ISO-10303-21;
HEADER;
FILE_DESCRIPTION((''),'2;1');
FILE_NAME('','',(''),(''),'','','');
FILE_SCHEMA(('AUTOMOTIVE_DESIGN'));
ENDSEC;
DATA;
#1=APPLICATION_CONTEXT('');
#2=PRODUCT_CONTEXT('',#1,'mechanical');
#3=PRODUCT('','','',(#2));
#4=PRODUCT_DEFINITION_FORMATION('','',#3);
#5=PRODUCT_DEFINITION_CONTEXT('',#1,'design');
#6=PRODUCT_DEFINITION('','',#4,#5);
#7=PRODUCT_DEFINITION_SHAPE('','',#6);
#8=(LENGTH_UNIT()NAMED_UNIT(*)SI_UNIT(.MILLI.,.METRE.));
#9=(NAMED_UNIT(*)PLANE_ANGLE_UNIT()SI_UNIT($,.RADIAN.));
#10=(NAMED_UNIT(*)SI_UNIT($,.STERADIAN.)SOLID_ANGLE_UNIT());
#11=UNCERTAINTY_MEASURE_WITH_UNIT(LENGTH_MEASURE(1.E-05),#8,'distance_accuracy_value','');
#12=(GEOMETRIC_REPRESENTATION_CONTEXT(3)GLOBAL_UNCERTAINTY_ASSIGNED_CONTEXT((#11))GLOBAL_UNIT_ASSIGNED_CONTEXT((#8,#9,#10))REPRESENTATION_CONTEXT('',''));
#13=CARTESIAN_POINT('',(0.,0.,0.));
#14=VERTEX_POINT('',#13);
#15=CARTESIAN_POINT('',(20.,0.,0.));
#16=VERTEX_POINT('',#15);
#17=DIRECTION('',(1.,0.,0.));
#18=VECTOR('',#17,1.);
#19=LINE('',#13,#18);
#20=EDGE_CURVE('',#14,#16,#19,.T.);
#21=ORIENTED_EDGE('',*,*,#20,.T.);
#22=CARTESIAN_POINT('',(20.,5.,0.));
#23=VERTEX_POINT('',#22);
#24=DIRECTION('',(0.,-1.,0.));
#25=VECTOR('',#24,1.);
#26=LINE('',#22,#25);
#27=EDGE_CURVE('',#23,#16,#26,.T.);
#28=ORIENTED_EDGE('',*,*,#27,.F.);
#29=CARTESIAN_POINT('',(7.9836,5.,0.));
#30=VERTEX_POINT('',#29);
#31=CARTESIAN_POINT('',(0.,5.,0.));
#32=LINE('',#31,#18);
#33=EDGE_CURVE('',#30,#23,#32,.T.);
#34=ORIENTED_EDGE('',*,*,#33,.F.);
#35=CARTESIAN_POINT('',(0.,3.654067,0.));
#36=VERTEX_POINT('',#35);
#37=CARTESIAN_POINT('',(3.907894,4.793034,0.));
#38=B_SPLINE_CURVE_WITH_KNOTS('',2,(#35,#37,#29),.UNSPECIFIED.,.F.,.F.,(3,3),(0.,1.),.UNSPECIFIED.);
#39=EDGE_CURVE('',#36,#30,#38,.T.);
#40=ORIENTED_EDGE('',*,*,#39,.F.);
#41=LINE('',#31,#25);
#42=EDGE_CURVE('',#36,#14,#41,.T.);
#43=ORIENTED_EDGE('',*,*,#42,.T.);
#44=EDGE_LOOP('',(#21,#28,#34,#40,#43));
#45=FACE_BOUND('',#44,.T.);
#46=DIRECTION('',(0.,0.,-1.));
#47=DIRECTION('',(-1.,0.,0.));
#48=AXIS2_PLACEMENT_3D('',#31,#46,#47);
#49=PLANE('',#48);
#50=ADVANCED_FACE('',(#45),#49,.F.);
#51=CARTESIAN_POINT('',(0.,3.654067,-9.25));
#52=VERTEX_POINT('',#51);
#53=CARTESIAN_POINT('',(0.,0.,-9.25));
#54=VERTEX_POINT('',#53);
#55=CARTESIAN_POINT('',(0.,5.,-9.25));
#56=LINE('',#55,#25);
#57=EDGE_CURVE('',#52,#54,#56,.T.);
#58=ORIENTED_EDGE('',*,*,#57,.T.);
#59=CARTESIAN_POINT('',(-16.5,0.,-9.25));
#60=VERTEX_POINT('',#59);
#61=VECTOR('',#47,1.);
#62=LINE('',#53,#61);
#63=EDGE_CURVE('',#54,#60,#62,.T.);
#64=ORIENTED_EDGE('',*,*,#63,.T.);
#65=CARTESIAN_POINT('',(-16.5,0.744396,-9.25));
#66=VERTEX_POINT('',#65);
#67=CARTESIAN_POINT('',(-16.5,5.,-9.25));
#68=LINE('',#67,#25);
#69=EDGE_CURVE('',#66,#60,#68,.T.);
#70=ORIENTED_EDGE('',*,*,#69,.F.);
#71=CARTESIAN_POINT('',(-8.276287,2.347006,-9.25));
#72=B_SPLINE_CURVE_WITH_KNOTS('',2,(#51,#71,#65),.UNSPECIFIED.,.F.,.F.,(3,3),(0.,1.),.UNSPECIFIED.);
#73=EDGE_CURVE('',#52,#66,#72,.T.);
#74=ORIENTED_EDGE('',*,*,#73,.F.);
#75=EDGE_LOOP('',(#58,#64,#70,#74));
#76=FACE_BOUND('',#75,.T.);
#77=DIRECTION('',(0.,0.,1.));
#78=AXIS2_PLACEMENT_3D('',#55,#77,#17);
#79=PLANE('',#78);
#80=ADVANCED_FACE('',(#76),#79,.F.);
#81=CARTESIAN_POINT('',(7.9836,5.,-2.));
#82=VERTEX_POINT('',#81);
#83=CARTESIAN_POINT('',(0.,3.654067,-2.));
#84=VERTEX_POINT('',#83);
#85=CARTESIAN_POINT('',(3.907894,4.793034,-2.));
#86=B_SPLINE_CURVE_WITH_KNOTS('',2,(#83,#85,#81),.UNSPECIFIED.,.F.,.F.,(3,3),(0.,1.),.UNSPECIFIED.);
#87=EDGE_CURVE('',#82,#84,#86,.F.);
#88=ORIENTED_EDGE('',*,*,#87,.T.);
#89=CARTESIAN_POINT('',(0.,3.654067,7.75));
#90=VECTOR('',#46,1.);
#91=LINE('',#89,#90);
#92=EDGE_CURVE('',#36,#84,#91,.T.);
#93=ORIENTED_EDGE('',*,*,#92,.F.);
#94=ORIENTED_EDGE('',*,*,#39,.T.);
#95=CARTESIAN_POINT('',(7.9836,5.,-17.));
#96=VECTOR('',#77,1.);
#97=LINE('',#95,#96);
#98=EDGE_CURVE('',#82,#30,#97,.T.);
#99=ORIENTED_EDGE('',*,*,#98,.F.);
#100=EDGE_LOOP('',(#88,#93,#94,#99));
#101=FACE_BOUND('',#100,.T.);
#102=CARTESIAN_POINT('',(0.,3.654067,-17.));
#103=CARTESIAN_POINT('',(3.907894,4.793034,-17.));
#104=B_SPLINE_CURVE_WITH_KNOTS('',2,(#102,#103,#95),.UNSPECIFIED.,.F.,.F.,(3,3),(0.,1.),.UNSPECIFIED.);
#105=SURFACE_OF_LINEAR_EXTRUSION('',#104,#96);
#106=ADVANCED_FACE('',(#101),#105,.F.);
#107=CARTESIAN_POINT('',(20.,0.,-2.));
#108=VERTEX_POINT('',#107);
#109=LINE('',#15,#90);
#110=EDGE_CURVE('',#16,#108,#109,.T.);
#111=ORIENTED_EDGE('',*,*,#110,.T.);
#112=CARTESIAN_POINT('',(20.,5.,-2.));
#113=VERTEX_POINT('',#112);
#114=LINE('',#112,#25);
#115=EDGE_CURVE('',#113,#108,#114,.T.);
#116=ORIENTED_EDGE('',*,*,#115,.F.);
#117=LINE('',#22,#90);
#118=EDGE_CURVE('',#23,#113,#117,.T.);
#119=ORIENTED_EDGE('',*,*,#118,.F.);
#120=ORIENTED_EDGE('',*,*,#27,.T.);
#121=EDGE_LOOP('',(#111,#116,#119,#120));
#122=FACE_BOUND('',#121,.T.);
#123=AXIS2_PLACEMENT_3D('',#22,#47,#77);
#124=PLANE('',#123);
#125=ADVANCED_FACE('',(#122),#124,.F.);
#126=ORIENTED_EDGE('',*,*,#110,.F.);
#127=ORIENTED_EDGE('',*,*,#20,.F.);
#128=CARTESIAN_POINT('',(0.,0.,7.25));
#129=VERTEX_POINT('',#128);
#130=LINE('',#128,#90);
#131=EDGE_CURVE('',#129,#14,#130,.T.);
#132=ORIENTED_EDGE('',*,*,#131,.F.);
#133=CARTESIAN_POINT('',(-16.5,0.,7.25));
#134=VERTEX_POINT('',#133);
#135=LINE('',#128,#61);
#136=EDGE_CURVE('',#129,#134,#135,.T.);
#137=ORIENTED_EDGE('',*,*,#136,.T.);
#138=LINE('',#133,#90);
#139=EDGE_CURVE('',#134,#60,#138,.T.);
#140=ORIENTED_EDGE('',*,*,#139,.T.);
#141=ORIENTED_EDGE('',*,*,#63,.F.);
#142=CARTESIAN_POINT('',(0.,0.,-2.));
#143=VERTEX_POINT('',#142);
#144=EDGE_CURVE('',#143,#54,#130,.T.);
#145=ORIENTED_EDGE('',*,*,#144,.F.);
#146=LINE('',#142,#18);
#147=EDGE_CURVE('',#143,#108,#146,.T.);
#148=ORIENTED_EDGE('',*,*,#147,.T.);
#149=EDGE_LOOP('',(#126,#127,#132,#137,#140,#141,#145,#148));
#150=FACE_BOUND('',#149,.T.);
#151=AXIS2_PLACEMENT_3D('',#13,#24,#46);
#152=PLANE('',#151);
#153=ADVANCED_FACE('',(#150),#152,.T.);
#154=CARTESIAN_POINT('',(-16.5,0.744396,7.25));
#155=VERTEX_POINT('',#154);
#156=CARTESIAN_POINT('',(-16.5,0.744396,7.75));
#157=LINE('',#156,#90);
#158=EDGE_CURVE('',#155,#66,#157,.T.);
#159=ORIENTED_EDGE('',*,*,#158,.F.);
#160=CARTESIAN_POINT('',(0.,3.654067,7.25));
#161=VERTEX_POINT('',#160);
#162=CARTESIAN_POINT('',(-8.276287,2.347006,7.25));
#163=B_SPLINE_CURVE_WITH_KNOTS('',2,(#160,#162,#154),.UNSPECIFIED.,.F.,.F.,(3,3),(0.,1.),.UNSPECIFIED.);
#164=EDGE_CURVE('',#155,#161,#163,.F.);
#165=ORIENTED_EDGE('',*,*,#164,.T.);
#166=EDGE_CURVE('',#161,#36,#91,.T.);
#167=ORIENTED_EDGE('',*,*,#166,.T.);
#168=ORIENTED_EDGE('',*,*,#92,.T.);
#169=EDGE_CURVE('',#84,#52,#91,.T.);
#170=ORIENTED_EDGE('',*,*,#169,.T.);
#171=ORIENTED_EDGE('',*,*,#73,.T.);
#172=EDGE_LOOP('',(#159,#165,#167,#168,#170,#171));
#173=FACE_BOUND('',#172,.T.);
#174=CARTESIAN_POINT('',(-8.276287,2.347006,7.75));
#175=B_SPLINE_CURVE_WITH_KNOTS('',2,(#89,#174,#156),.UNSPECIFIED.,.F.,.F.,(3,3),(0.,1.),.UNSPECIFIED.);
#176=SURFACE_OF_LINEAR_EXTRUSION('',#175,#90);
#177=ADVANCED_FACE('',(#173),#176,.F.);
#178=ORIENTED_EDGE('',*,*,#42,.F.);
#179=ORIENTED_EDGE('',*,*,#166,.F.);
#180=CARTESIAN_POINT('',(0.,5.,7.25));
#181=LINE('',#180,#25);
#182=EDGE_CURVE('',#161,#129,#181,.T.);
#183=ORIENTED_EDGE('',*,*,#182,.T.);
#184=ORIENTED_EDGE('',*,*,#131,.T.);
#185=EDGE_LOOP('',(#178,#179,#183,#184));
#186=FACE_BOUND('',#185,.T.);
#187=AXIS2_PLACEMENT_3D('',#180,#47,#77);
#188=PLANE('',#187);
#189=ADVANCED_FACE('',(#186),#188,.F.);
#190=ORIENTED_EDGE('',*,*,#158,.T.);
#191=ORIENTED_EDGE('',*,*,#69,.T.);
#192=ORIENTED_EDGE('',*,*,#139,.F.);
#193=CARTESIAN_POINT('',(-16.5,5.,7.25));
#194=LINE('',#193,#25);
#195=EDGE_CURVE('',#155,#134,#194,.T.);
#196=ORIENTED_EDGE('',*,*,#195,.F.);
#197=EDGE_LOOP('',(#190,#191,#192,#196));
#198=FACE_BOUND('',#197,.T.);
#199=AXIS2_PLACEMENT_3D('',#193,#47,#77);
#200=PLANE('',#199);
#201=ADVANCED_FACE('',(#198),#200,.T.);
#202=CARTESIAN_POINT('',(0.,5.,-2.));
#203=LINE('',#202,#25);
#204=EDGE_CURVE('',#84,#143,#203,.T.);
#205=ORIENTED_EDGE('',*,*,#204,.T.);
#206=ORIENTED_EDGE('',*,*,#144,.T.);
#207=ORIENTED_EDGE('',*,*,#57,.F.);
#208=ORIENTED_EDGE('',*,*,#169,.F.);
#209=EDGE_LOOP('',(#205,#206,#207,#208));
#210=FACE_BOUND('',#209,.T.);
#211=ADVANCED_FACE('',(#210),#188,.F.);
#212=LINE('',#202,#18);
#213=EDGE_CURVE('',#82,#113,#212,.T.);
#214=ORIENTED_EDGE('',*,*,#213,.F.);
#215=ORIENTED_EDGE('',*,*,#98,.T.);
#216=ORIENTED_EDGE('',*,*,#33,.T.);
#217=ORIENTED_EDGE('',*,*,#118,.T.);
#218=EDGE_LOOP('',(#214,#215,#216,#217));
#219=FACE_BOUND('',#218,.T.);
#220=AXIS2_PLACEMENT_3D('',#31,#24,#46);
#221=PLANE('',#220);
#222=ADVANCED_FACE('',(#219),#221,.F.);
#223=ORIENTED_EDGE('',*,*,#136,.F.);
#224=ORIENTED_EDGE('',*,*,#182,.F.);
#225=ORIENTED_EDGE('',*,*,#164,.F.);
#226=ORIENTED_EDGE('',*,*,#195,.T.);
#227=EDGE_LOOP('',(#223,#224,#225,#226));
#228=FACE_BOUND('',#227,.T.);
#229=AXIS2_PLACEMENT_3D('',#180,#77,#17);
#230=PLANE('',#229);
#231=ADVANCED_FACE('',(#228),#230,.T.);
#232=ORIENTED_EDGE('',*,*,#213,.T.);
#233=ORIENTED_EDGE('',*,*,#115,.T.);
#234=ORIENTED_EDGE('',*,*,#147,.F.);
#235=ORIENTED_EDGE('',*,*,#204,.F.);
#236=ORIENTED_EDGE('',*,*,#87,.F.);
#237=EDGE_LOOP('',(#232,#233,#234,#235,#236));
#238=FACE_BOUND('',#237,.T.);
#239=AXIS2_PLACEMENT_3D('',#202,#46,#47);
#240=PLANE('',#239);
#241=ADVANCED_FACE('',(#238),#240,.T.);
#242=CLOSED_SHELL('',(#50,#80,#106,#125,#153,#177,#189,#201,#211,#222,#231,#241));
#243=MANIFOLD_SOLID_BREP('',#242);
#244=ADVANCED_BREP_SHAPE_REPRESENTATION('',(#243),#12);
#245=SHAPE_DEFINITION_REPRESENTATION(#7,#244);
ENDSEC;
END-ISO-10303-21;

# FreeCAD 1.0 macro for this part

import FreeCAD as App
import Part
import Sketcher
from FreeCAD import Vector


def add_polygon(sketch, points):
    """Adds a closed chain of lines whose ends are joined by coincident constraints."""
    first, n = sketch.GeometryCount, len(points)
    for a, b in zip(points, points[1:] + points[:1]):
        sketch.addGeometry(Part.LineSegment(App.Vector(*a, 0), App.Vector(*b, 0)), False)
    for i in range(n):
        sketch.addConstraint(Sketcher.Constraint("Coincident", first + i, 2, first + (i + 1) % n, 1))

doc = App.newDocument("Part")
body = doc.addObject("PartDesign::Body", "Body")

sketch1 = doc.addObject("Sketcher::SketchObject", "Sketch")
body.addObject(sketch1)
sketch1.AttachmentSupport = (doc.XZ_Plane, [""])
sketch1.MapMode = "FlatFace"
add_polygon(sketch1, [(0, 0), (20, 0), (20, -2), (0, -2), (0, -9.2), (-16.5, -9.2), (-16.5, 7.2), (0, 7.2)])
sketch1.addConstraint(Sketcher.Constraint("Horizontal", 0))
sketch1.addConstraint(Sketcher.Constraint("Vertical", 1))
sketch1.addConstraint(Sketcher.Constraint("Horizontal", 2))
sketch1.addConstraint(Sketcher.Constraint("Vertical", 3))
sketch1.addConstraint(Sketcher.Constraint("Horizontal", 4))
sketch1.addConstraint(Sketcher.Constraint("Vertical", 5))
sketch1.addConstraint(Sketcher.Constraint("Horizontal", 6))
sketch1.addConstraint(Sketcher.Constraint("Vertical", 7))
sketch1.addConstraint(Sketcher.Constraint("Coincident", 7, 2, -1, 1))
sketch1.addConstraint(Sketcher.Constraint("PointOnObject", 2, 2, -2))
sketch1.addConstraint(Sketcher.Constraint("Equal", 6, 5))
sketch1.addConstraint(Sketcher.Constraint("Equal", 3, 7))
sketch1.addConstraint(Sketcher.Constraint("DistanceX", 0, 1, 0, 2, 20.0))
sketch1.addConstraint(Sketcher.Constraint("DistanceY", 1, 2, 1, 1, 2.0))
sketch1.addConstraint(Sketcher.Constraint("DistanceX", 4, 2, 4, 1, 16.5))
pad1 = doc.addObject("PartDesign::Pad", "Pad")
body.addObject(pad1)
pad1.Profile = sketch1
pad1.Length = 5
pad1.Reversed = True

sketch2 = doc.addObject("Sketcher::SketchObject", "Sketch001")
body.addObject(sketch2)
sketch2.AttachmentSupport = (doc.XY_Plane, [""])
sketch2.MapMode = "FlatFace"
sketch2.AttachmentOffset = App.Placement(Vector(0, 0, -9.25), App.Rotation())
sketch2.addGeometry(Part.LineSegment(Vector(0, 5, 0), Vector(0, 3.654067, 0)), False)
sketch2.addGeometry(Part.BSplineCurve([Vector(0, 3.654067, 0), Vector(-8.276287, 2.347006, 0), Vector(-16.5, 0.744396, 0)], [3, 3], [0, 1], False, 2, [1, 1, 1], False), False)
sketch2.addGeometry(Part.LineSegment(Vector(-16.5, 0.744396, 0), Vector(-18.688542, 4.204942, 0)), False)
sketch2.addGeometry(Part.LineSegment(Vector(-18.688542, 4.204942, 0), Vector(-16.723031, 6.238602, 0)), False)
sketch2.addGeometry(Part.LineSegment(Vector(-16.723031, 6.238602, 0), Vector(-3.598874, 6.462249, 0)), False)
sketch2.addGeometry(Part.LineSegment(Vector(-3.598874, 6.462249, 0), Vector(0, 5, 0)), False)
sketch2.addConstraint(Sketcher.Constraint("Block", 1))
sketch2.addConstraint(Sketcher.Constraint("Coincident", 0, 2, 1, 1))
sketch2.addConstraint(Sketcher.Constraint("Coincident", 1, 2, 2, 1))
sketch2.addConstraint(Sketcher.Constraint("Coincident", 2, 2, 3, 1))
sketch2.addConstraint(Sketcher.Constraint("Coincident", 3, 2, 4, 1))
sketch2.addConstraint(Sketcher.Constraint("Coincident", 4, 2, 5, 1))
sketch2.addConstraint(Sketcher.Constraint("Coincident", 5, 2, 0, 1))
sketch2.addConstraint(Sketcher.Constraint("Vertical", 0))
sketch2.addConstraint(Sketcher.Constraint("DistanceY", -1, 1, 5, 2, 5.0))
sketch2.addConstraint(Sketcher.Constraint("DistanceY", -1, 1, 3, 2, 6.238602))
sketch2.addConstraint(Sketcher.Constraint("Distance", 2, 4.09452))
sketch2.addConstraint(Sketcher.Constraint("Distance", 3, 2.828252))
sketch2.addConstraint(Sketcher.Constraint("DistanceY", -1, 1, 2, 2, 4.204942))
sketch2.addConstraint(Sketcher.Constraint("DistanceY", -1, 1, 4, 2, 6.462249))
sketch2.addConstraint(Sketcher.Constraint("DistanceX", 2, 2, 4, 2, 15.089668))
pocket1 = doc.addObject("PartDesign::Pocket", "Pocket")
body.addObject(pocket1)
pocket1.Profile = sketch2
pocket1.Length = 17
pocket1.Reversed = True

sketch3 = doc.addObject("Sketcher::SketchObject", "Sketch002")
body.addObject(sketch3)
sketch3.AttachmentSupport = (doc.XY_Plane, [""])
sketch3.MapMode = "FlatFace"
sketch3.addGeometry(Part.LineSegment(Vector(0, 5, 0), Vector(0, 3.654067, 0)), False)
sketch3.addGeometry(Part.BSplineCurve([Vector(0, 3.654067, 0), Vector(3.907894, 4.793034, 0), Vector(7.9836, 5, 0)], [3, 3], [0, 1], False, 2, [1, 1, 1], False), False)
sketch3.addGeometry(Part.LineSegment(Vector(7.9836, 5, 0), Vector(0, 5, 0)), False)
sketch3.addConstraint(Sketcher.Constraint("Block", 1))
sketch3.addConstraint(Sketcher.Constraint("Coincident", 0, 2, 1, 1))
sketch3.addConstraint(Sketcher.Constraint("Coincident", 1, 2, 2, 1))
sketch3.addConstraint(Sketcher.Constraint("Coincident", 2, 2, 0, 1))
sketch3.addConstraint(Sketcher.Constraint("Vertical", 0))
sketch3.addConstraint(Sketcher.Constraint("Horizontal", 2))
pocket2 = doc.addObject("PartDesign::Pocket", "Pocket001")
body.addObject(pocket2)
pocket2.Profile = sketch3
pocket2.Length = 17

doc.recompute()
